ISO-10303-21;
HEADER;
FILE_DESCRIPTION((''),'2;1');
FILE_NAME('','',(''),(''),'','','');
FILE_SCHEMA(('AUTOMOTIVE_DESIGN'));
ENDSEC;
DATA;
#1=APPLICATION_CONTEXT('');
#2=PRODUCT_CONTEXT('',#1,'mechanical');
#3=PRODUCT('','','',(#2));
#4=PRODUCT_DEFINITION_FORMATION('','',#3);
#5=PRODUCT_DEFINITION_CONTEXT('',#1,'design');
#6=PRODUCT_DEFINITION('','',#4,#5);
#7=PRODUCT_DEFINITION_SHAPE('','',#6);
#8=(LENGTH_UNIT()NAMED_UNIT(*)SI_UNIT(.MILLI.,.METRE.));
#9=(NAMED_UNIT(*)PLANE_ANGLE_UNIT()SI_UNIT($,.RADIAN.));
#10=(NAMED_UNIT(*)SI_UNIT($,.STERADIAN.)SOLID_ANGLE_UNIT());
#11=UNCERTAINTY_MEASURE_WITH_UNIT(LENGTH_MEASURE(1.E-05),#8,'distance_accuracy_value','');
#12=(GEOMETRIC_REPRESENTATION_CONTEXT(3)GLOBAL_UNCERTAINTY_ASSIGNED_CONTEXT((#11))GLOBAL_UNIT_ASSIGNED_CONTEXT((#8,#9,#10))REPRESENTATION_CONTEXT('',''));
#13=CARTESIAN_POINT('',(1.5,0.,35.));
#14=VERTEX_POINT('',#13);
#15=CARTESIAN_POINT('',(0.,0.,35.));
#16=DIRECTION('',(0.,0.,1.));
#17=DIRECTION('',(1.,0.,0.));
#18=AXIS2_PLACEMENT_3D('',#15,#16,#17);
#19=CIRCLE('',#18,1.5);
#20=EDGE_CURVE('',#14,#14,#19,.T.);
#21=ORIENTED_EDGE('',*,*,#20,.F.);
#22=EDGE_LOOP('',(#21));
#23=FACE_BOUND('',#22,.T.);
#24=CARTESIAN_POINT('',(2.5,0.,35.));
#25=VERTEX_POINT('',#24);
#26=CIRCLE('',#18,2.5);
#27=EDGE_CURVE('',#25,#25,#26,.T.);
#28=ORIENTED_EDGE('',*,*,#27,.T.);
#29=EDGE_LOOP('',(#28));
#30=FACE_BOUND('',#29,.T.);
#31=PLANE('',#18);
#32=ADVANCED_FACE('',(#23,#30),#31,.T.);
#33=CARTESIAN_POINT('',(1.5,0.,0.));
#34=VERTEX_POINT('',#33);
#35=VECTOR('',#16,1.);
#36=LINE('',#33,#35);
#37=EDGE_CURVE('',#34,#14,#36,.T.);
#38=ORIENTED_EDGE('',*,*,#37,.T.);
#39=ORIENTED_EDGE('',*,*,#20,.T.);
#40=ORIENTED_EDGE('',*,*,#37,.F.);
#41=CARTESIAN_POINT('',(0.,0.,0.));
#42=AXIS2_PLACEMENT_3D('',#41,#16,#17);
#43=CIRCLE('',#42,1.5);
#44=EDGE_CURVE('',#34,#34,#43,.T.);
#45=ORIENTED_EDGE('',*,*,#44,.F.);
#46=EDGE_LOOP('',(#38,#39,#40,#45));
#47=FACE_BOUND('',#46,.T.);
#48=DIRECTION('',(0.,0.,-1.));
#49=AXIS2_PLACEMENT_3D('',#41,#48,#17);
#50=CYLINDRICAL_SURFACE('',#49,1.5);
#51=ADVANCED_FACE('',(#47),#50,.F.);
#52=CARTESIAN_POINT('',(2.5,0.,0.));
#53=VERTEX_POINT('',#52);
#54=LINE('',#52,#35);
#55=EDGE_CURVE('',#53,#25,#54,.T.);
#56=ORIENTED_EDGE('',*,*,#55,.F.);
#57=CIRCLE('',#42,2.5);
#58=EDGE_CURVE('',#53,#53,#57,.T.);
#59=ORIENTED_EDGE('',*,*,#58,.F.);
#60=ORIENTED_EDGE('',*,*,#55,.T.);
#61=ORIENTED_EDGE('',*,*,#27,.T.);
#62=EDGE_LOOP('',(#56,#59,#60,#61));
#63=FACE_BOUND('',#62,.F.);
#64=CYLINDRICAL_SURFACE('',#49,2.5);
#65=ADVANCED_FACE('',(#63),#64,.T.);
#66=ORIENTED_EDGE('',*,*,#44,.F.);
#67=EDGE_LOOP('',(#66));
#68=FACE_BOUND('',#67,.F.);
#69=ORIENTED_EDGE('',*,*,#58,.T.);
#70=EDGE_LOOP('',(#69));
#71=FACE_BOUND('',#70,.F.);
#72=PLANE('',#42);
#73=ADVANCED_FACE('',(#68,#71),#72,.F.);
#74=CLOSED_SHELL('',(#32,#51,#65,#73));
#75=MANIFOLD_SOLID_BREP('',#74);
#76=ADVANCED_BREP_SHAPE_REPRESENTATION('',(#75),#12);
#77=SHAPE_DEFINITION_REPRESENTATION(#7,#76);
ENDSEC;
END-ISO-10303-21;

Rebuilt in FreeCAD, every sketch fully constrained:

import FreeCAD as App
import Part
import Sketcher
Q = App.Units.Quantity

doc = App.newDocument("Part")
body = doc.addObject("PartDesign::Body", "Body")

# Sketch on XY plane
sketch1 = doc.addObject("Sketcher::SketchObject", "Sketch")
body.addObject(sketch1)
sketch1.AttachmentSupport = (doc.XY_Plane, [""])
sketch1.MapMode = "FlatFace"
sketch1.addGeometry(Part.Circle(App.Vector(0, 0, 0), App.Vector(0, 0, 1), 2.5), False)
sketch1.addGeometry(Part.Circle(App.Vector(0, 0, 0), App.Vector(0, 0, 1), 1.5), False)
sketch1.addConstraint(Sketcher.Constraint("Coincident", 0, 3, -1, 1))
sketch1.addConstraint(Sketcher.Constraint("Coincident", 1, 3, -1, 1))
sketch1.addConstraint(Sketcher.Constraint("Diameter", 0, Q("5 mm")))
sketch1.addConstraint(Sketcher.Constraint("Diameter", 1, Q("3 mm")))
pad1 = doc.addObject("PartDesign::Pad", "Pad")
body.addObject(pad1)
pad1.Profile = sketch1
pad1.Length = 35

doc.recompute()
